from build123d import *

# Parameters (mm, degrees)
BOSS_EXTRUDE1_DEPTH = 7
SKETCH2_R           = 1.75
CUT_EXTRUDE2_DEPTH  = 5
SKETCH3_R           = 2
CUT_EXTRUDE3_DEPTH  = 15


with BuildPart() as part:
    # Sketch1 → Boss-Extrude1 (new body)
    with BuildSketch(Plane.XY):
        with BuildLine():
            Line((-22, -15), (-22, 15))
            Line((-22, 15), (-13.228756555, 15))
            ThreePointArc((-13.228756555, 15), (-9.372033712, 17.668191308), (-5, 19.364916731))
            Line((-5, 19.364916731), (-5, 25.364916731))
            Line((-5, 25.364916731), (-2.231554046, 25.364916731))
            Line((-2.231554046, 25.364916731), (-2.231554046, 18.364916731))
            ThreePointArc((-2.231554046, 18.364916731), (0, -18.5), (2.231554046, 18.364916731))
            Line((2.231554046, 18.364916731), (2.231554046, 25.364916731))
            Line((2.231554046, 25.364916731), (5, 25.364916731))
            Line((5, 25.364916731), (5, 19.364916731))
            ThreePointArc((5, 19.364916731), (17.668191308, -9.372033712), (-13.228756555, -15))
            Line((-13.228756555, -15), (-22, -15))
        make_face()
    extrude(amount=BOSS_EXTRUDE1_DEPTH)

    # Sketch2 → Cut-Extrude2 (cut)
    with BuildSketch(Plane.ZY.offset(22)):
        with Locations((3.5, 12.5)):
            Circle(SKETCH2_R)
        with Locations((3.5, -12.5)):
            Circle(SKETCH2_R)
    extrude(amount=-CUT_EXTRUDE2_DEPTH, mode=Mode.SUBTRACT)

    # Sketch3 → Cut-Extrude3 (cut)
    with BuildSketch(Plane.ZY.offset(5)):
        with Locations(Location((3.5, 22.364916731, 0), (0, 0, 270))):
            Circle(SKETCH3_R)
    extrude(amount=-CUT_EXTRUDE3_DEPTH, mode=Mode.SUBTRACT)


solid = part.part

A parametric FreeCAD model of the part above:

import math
import FreeCAD as App
import Part
import Sketcher
Q = App.Units.Quantity

doc = App.newDocument("Part")
body = doc.addObject("PartDesign::Body", "Body")

sketch1 = doc.addObject("Sketcher::SketchObject", "Sketch")
body.addObject(sketch1)
sketch1.AttachmentSupport = (doc.XY_Plane, [""])
sketch1.MapMode = "FlatFace"
sketch1.addGeometry([
    Part.LineSegment(App.Vector(-22, 15, 0), App.Vector(-22, -15, 0)),
    Part.LineSegment(App.Vector(-22, -15, 0), App.Vector(-13.2, -15, 0)),
    Part.ArcOfCircle(Part.Circle(App.Vector(0, 0, 0), App.Vector(0, 0, 1), 20), math.radians(-131), math.radians(76)),
    Part.LineSegment(App.Vector(5, 19.4, 0), App.Vector(5, 25.4, 0)),
    Part.LineSegment(App.Vector(5, 25.4, 0), App.Vector(2.2, 25.4, 0)),
    Part.LineSegment(App.Vector(2.2, 25.4, 0), App.Vector(2.2, 18.4, 0)),
    Part.ArcOfCircle(Part.Circle(App.Vector(0, 0, 0), App.Vector(0, 0, 1), 18.5), math.radians(97), math.radians(443)),
    Part.LineSegment(App.Vector(-2.2, 18.4, 0), App.Vector(-2.2, 25.4, 0)),
    Part.LineSegment(App.Vector(-2.2, 25.4, 0), App.Vector(-5, 25.4, 0)),
    Part.LineSegment(App.Vector(-5, 25.4, 0), App.Vector(-5, 19.4, 0)),
    Part.ArcOfCircle(Part.Circle(App.Vector(0, 0, 0), App.Vector(0, 0, 1), 20), math.radians(104), math.radians(131)),
    Part.LineSegment(App.Vector(-13.2, 15, 0), App.Vector(-22, 15, 0)),
], False)
sketch1.addConstraint([
    Sketcher.Constraint("Coincident", 0, 2, 1, 1),
    Sketcher.Constraint("Coincident", 1, 2, 2, 1),
    Sketcher.Constraint("Coincident", 2, 2, 3, 1),
    Sketcher.Constraint("Coincident", 3, 2, 4, 1),
    Sketcher.Constraint("Coincident", 4, 2, 5, 1),
    Sketcher.Constraint("Coincident", 5, 2, 6, 2),
    Sketcher.Constraint("Coincident", 6, 1, 7, 1),
    Sketcher.Constraint("Coincident", 7, 2, 8, 1),
    Sketcher.Constraint("Coincident", 8, 2, 9, 1),
    Sketcher.Constraint("Coincident", 9, 2, 10, 1),
    Sketcher.Constraint("Coincident", 10, 2, 11, 1),
    Sketcher.Constraint("Coincident", 11, 2, 0, 1),
    Sketcher.Constraint("Vertical", 0),
    Sketcher.Constraint("Horizontal", 1),
    Sketcher.Constraint("Vertical", 3),
    Sketcher.Constraint("Horizontal", 4),
    Sketcher.Constraint("Vertical", 5),
    Sketcher.Constraint("Vertical", 7),
    Sketcher.Constraint("Horizontal", 8),
    Sketcher.Constraint("Vertical", 9),
    Sketcher.Constraint("Horizontal", 11),
    Sketcher.Constraint("Coincident", 2, 3, -1, 1),
    Sketcher.Constraint("Coincident", 6, 3, -1, 1),
    Sketcher.Constraint("Coincident", 10, 3, -1, 1),
    Sketcher.Constraint("Equal", 2, 10),
    Sketcher.Constraint("Symmetric", 4, 2, 7, 2, -2),
    Sketcher.Constraint("Horizontal", 2, 2, 9, 2),
    Sketcher.Constraint("Vertical", 1, 2, 10, 2),
    Sketcher.Constraint("Radius", 2, Q("20 mm")),
    Sketcher.Constraint("Radius", 6, Q("18.5 mm")),
    Sketcher.Constraint("DistanceY", 0, 2, 0, 1, Q("30 mm")),
    Sketcher.Constraint("DistanceY", 3, 1, 3, 2, Q("6 mm")),
    Sketcher.Constraint("DistanceY", 5, 2, 5, 1, Q("7 mm")),
    Sketcher.Constraint("DistanceX", 0, 2, -1, 1, Q("22 mm")),
    Sketcher.Constraint("DistanceX", -1, 1, 2, 2, Q("5 mm")),
])
pad1 = doc.addObject("PartDesign::Pad", "Pad")
body.addObject(pad1)
pad1.Profile = sketch1
pad1.Length = 7

sketch2 = doc.addObject("Sketcher::SketchObject", "Sketch001")
body.addObject(sketch2)
sketch2.AttachmentSupport = (doc.YZ_Plane, [""])
sketch2.MapMode = "FlatFace"
sketch2.AttachmentOffset = App.Placement(App.Vector(0, 0, -22), App.Rotation())
sketch2.addGeometry([
    Part.Circle(App.Vector(12.5, 3.5, 0), App.Vector(0, 0, 1), 1.8),
    Part.Circle(App.Vector(-12.5, 3.5, 0), App.Vector(0, 0, 1), 1.8),
], False)
sketch2.addConstraint([
    Sketcher.Constraint("Equal", 0, 1),
    Sketcher.Constraint("Symmetric", 0, 3, 1, 3, -2),
    Sketcher.Constraint("Diameter", 0, Q("3.5 mm")),
    Sketcher.Constraint("DistanceX", 1, 3, 0, 3, Q("25 mm")),
    Sketcher.Constraint("DistanceY", -1, 1, 0, 3, Q("3.5 mm")),
])
pocket1 = doc.addObject("PartDesign::Pocket", "Pocket")
body.addObject(pocket1)
pocket1.Profile = sketch2
pocket1.Length = 5
pocket1.Reversed = True

sketch3 = doc.addObject("Sketcher::SketchObject", "Sketch002")
body.addObject(sketch3)
sketch3.AttachmentSupport = (doc.YZ_Plane, [""])
sketch3.MapMode = "FlatFace"
sketch3.AttachmentOffset = App.Placement(App.Vector(0, 0, -5), App.Rotation())
sketch3.addGeometry(Part.Circle(App.Vector(22.4, 3.5, 0), App.Vector(0, 0, 1), 2), False)
sketch3.addConstraint([
    Sketcher.Constraint("Diameter", 0, Q("4 mm")),
    Sketcher.Constraint("DistanceY", -1, 1, 0, 3, Q("3.5 mm")),
    Sketcher.Constraint("DistanceX", -1, 1, 0, 3, Q("22.364917 mm")),
])
pocket2 = doc.addObject("PartDesign::Pocket", "Pocket001")
body.addObject(pocket2)
pocket2.Profile = sketch3
pocket2.Length = 15
pocket2.Reversed = True

doc.recompute()
